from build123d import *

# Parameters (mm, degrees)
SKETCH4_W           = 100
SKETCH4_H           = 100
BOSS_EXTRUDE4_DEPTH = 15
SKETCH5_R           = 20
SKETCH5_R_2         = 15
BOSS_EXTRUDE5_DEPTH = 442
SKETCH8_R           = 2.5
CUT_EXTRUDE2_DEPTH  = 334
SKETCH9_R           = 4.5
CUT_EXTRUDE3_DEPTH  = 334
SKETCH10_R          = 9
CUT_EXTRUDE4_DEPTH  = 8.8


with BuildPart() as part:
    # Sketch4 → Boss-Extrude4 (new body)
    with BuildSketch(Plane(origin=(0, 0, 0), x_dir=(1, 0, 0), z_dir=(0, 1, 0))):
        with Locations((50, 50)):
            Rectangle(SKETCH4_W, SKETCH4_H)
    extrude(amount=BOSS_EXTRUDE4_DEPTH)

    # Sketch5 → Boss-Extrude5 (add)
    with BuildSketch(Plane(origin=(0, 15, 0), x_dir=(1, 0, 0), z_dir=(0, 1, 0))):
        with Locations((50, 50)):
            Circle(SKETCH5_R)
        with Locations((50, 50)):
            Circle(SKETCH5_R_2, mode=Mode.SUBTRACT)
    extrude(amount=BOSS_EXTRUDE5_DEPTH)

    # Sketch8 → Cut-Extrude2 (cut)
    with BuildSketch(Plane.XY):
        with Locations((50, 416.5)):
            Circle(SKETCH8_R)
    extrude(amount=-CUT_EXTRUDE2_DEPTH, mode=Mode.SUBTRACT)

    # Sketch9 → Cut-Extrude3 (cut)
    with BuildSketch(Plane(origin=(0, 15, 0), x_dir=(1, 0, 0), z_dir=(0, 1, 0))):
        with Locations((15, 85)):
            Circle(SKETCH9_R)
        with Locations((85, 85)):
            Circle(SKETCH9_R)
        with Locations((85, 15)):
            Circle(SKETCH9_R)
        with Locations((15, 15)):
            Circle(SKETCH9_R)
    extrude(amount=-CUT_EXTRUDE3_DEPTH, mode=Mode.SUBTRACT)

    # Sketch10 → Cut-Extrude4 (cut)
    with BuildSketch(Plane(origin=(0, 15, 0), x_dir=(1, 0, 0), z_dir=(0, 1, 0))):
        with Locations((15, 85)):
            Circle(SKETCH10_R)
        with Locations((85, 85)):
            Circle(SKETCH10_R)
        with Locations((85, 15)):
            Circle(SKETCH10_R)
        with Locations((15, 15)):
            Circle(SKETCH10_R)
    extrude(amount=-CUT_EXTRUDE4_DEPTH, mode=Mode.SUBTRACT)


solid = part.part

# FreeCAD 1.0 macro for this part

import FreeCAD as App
import Part
import Sketcher
from FreeCAD import Vector
Q = App.Units.Quantity

doc = App.newDocument("Part")
body = doc.addObject("PartDesign::Body", "Body")

# Sketch on XZ plane
sketch1 = body.newObject("Sketcher::SketchObject", "Sketch")
sketch1.AttachmentSupport = (doc.getObject("XZ_Plane"), [""])
sketch1.MapMode = "FlatFace"
sketch1.addGeometry(Part.LineSegment(Vector(0, -100, 0), Vector(0, 0, 0)), False)
sketch1.addGeometry(Part.LineSegment(Vector(0, 0, 0), Vector(100, 0, 0)), False)
sketch1.addGeometry(Part.LineSegment(Vector(100, 0, 0), Vector(100, -100, 0)), False)
sketch1.addGeometry(Part.LineSegment(Vector(100, -100, 0), Vector(0, -100, 0)), False)
sketch1.addConstraint(Sketcher.Constraint("Coincident", 0, 2, 1, 1))
sketch1.addConstraint(Sketcher.Constraint("Coincident", 1, 2, 2, 1))
sketch1.addConstraint(Sketcher.Constraint("Coincident", 2, 2, 3, 1))
sketch1.addConstraint(Sketcher.Constraint("Coincident", 3, 2, 0, 1))
sketch1.addConstraint(Sketcher.Constraint("Vertical", 0))
sketch1.addConstraint(Sketcher.Constraint("Horizontal", 1))
sketch1.addConstraint(Sketcher.Constraint("Vertical", 2))
sketch1.addConstraint(Sketcher.Constraint("Horizontal", 3))
sketch1.addConstraint(Sketcher.Constraint("Coincident", 0, 2, -1, 1))
sketch1.addConstraint(Sketcher.Constraint("Equal", 3, 0))
sketch1.addConstraint(Sketcher.Constraint("DistanceX", 1, 1, 1, 2, Q("100 mm")))
pad1 = body.newObject("PartDesign::Pad", "Pad")
pad1.Profile = sketch1
pad1.Length = 15
pad1.Reversed = True

# Sketch on XZ plane
sketch2 = body.newObject("Sketcher::SketchObject", "Sketch001")
sketch2.AttachmentSupport = (doc.getObject("XZ_Plane"), [""])
sketch2.MapMode = "FlatFace"
sketch2.AttachmentOffset = App.Placement(Vector(0, 0, -15), App.Rotation())
sketch2.addGeometry(Part.Circle(Vector(50, -50, 0), Vector(0, 0, 1), 20), False)
sketch2.addGeometry(Part.Circle(Vector(50, -50, 0), Vector(0, 0, 1), 15), False)
sketch2.addConstraint(Sketcher.Constraint("Coincident", 1, 3, 0, 3))
sketch2.addConstraint(Sketcher.Constraint("Diameter", 0, Q("40 mm")))
sketch2.addConstraint(Sketcher.Constraint("Diameter", 1, Q("30 mm")))
sketch2.addConstraint(Sketcher.Constraint("DistanceX", -1, 1, 0, 3, Q("50 mm")))
sketch2.addConstraint(Sketcher.Constraint("DistanceY", 0, 3, -1, 1, Q("50 mm")))
pad2 = body.newObject("PartDesign::Pad", "Pad001")
pad2.Profile = sketch2
pad2.Length = 442
pad2.Reversed = True

# Sketch on XY plane
sketch3 = body.newObject("Sketcher::SketchObject", "Sketch002")
sketch3.AttachmentSupport = (doc.getObject("XY_Plane"), [""])
sketch3.MapMode = "FlatFace"
sketch3.addGeometry(Part.Circle(Vector(50, 416.5, 0), Vector(0, 0, 1), 2.5), False)
sketch3.addConstraint(Sketcher.Constraint("Diameter", 0, Q("5 mm")))
sketch3.addConstraint(Sketcher.Constraint("DistanceX", -1, 1, 0, 3, Q("50 mm")))
sketch3.addConstraint(Sketcher.Constraint("DistanceY", -1, 1, 0, 3, Q("416.5 mm")))
pocket1 = body.newObject("PartDesign::Pocket", "Pocket")
pocket1.Profile = sketch3
pocket1.Length = 334

# Sketch on XZ plane
sketch4 = body.newObject("Sketcher::SketchObject", "Sketch003")
sketch4.AttachmentSupport = (doc.getObject("XZ_Plane"), [""])
sketch4.MapMode = "FlatFace"
sketch4.AttachmentOffset = App.Placement(Vector(0, 0, -15), App.Rotation())
sketch4.addGeometry(Part.Circle(Vector(15, -85, 0), Vector(0, 0, 1), 4.5), False)
sketch4.addGeometry(Part.Circle(Vector(85, -85, 0), Vector(0, 0, 1), 4.5), False)
sketch4.addGeometry(Part.Circle(Vector(85, -15, 0), Vector(0, 0, 1), 4.5), False)
sketch4.addGeometry(Part.Circle(Vector(15, -15, 0), Vector(0, 0, 1), 4.5), False)
sketch4.addConstraint(Sketcher.Constraint("Equal", 0, 1))
sketch4.addConstraint(Sketcher.Constraint("Equal", 1, 2))
sketch4.addConstraint(Sketcher.Constraint("Equal", 2, 3))
sketch4.addConstraint(Sketcher.Constraint("Horizontal", 0, 3, 1, 3))
sketch4.addConstraint(Sketcher.Constraint("Horizontal", 2, 3, 3, 3))
sketch4.addConstraint(Sketcher.Constraint("Vertical", 1, 3, 2, 3))
sketch4.addConstraint(Sketcher.Constraint("Vertical", 0, 3, 3, 3))
sketch4.addConstraint(Sketcher.Constraint("Diameter", 0, Q("9 mm")))
sketch4.addConstraint(Sketcher.Constraint("DistanceX", -1, 1, 0, 3, Q("15 mm")))
sketch4.addConstraint(Sketcher.Constraint("DistanceY", 0, 3, -1, 1, Q("85 mm")))
sketch4.addConstraint(Sketcher.Constraint("DistanceX", -1, 1, 1, 3, Q("85 mm")))
sketch4.addConstraint(Sketcher.Constraint("DistanceY", 2, 3, -1, 1, Q("15 mm")))
pocket2 = body.newObject("PartDesign::Pocket", "Pocket001")
pocket2.Profile = sketch4
pocket2.Length = 334
pocket2.Reversed = True

# Sketch on XZ plane
sketch5 = body.newObject("Sketcher::SketchObject", "Sketch004")
sketch5.AttachmentSupport = (doc.getObject("XZ_Plane"), [""])
sketch5.MapMode = "FlatFace"
sketch5.AttachmentOffset = App.Placement(Vector(0, 0, -15), App.Rotation())
sketch5.addGeometry(Part.Circle(Vector(15, -85, 0), Vector(0, 0, 1), 9), False)
sketch5.addGeometry(Part.Circle(Vector(85, -85, 0), Vector(0, 0, 1), 9), False)
sketch5.addGeometry(Part.Circle(Vector(85, -15, 0), Vector(0, 0, 1), 9), False)
sketch5.addGeometry(Part.Circle(Vector(15, -15, 0), Vector(0, 0, 1), 9), False)
sketch5.addConstraint(Sketcher.Constraint("Equal", 0, 1))
sketch5.addConstraint(Sketcher.Constraint("Equal", 1, 2))
sketch5.addConstraint(Sketcher.Constraint("Equal", 2, 3))
sketch5.addConstraint(Sketcher.Constraint("Horizontal", 0, 3, 1, 3))
sketch5.addConstraint(Sketcher.Constraint("Horizontal", 2, 3, 3, 3))
sketch5.addConstraint(Sketcher.Constraint("Vertical", 1, 3, 2, 3))
sketch5.addConstraint(Sketcher.Constraint("Vertical", 0, 3, 3, 3))
sketch5.addConstraint(Sketcher.Constraint("Diameter", 0, Q("18 mm")))
sketch5.addConstraint(Sketcher.Constraint("DistanceX", -1, 1, 0, 3, Q("15 mm")))
sketch5.addConstraint(Sketcher.Constraint("DistanceY", 0, 3, -1, 1, Q("85 mm")))
sketch5.addConstraint(Sketcher.Constraint("DistanceX", -1, 1, 1, 3, Q("85 mm")))
sketch5.addConstraint(Sketcher.Constraint("DistanceY", 2, 3, -1, 1, Q("15 mm")))
pocket3 = body.newObject("PartDesign::Pocket", "Pocket002")
pocket3.Profile = sketch5
pocket3.Length = 8.8
pocket3.Reversed = True

doc.recompute()
